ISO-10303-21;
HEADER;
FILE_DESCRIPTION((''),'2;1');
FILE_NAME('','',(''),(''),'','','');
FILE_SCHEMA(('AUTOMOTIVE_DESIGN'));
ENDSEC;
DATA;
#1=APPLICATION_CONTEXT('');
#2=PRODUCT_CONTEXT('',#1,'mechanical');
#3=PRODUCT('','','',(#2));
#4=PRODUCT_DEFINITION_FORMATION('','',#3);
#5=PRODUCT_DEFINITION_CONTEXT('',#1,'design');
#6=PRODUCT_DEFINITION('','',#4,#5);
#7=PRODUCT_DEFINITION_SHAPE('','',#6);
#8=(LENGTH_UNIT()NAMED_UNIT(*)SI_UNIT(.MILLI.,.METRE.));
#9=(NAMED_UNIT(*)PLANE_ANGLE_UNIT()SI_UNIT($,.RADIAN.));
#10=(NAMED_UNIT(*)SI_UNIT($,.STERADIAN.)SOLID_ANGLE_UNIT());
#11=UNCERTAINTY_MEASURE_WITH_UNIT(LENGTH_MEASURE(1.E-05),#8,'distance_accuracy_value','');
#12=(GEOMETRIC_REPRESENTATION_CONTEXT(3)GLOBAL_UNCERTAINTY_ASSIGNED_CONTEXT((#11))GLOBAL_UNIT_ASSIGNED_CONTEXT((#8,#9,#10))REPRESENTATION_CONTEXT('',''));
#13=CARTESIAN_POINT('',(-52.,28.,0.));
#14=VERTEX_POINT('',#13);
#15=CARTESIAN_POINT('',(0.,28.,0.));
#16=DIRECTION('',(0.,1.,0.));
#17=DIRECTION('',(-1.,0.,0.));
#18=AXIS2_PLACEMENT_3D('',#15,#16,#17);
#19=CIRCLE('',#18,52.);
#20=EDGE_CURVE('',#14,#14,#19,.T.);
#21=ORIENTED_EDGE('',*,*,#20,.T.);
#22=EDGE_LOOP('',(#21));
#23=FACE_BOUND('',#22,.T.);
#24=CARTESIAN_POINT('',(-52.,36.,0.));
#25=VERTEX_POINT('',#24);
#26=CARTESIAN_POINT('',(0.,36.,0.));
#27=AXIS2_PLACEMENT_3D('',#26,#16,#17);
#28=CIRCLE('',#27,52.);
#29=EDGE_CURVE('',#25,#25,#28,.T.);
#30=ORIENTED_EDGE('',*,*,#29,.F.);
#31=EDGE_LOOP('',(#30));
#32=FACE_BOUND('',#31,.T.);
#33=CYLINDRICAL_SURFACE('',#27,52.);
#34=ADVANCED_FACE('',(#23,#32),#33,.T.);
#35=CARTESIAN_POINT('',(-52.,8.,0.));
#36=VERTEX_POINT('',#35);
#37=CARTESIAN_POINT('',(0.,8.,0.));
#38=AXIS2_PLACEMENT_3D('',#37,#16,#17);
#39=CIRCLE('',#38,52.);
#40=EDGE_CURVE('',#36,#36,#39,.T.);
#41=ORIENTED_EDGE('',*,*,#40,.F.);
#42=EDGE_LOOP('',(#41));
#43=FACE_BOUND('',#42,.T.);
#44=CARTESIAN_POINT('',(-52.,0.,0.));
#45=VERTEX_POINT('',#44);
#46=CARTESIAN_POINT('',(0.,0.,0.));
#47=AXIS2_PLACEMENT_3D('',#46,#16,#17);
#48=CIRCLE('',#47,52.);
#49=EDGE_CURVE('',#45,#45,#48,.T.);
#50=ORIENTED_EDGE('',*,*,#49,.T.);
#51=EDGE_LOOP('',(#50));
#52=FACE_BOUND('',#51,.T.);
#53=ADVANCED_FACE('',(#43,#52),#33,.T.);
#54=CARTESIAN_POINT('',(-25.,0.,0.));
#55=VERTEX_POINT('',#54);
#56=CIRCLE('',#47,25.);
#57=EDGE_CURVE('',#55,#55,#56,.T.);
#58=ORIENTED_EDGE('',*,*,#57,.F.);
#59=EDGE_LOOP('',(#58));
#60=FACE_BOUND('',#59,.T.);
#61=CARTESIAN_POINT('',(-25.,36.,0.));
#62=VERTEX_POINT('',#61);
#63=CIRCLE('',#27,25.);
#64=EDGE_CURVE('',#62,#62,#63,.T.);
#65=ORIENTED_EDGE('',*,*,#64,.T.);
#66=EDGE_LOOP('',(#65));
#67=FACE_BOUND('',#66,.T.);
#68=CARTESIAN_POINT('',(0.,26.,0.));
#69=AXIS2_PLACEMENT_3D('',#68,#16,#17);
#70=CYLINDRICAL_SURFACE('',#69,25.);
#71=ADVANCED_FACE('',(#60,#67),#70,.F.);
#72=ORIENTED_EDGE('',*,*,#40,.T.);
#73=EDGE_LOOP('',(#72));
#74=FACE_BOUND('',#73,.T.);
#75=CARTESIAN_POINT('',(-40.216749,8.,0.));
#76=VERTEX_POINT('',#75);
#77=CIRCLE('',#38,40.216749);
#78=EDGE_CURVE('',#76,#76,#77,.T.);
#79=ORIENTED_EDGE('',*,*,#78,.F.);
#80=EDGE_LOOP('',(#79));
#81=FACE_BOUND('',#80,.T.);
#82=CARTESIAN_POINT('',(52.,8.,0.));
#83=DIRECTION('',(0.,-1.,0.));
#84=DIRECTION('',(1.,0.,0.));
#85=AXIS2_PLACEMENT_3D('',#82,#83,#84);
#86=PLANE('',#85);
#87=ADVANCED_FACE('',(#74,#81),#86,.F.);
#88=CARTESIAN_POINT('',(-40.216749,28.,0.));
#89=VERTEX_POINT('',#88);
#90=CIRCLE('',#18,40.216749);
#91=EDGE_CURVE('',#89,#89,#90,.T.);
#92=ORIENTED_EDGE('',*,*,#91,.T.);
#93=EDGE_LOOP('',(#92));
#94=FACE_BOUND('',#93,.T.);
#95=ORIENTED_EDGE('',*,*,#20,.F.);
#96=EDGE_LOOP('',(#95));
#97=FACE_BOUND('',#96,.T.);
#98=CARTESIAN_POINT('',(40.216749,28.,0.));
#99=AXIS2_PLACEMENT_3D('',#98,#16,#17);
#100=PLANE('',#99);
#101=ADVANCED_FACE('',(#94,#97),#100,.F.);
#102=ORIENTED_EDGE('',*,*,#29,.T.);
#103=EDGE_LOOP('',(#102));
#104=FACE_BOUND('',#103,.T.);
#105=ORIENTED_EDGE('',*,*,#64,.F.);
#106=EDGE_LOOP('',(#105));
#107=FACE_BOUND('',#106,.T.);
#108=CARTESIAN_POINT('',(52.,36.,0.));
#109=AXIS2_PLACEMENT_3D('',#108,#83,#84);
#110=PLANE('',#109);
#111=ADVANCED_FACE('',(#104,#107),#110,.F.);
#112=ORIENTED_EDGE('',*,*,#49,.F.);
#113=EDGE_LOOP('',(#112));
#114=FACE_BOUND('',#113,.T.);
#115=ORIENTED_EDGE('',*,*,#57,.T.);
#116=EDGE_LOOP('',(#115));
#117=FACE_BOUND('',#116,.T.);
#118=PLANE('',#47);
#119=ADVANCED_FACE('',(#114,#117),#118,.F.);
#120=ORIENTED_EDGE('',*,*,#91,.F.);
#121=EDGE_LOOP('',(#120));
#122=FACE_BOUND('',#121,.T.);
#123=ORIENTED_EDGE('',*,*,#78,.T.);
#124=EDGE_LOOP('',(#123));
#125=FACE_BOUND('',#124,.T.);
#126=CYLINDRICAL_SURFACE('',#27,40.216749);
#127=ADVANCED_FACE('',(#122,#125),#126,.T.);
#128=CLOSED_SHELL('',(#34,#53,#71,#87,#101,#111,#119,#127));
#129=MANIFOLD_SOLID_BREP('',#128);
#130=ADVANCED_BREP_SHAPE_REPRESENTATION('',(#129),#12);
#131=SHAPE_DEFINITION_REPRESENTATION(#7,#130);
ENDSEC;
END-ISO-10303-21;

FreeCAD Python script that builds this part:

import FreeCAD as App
import Part
import Sketcher
from FreeCAD import Vector
Q = App.Units.Quantity

doc = App.newDocument("Part")
params = doc.addObject("Spreadsheet::Sheet", "Params")
for row, (alias, value) in enumerate([
    ("sketch1_width", "52 mm"),
    ("sketch1_height", "8 mm"),
    ("sketch1_height2", "20 mm"),
    ("revolution_angle", "360 deg"),
    ("sketch2_diameter", "50 mm"),
    ("pocket1_length", "10 mm"),
    ("sketch3_diameter", "50 mm"),
    ("pocket2_length", "36 mm"),
], start=1):
    params.set(f"A{row}", alias)
    params.set(f"B{row}", "=" + value)
    params.setAlias(f"B{row}", alias)

body = doc.addObject("PartDesign::Body", "Body")

sketch1 = body.newObject("Sketcher::SketchObject", "Sketch")
sketch1.AttachmentSupport = (doc.getObject("XY_Plane"), [""])
sketch1.MapMode = "FlatFace"
sketch1.addGeometry([
    Part.LineSegment(Vector(0, 0, 0), Vector(52, 0, 0)),
    Part.LineSegment(Vector(52, 0, 0), Vector(52, 8, 0)),
    Part.LineSegment(Vector(52, 8, 0), Vector(40, 8, 0)),
    Part.LineSegment(Vector(40, 8, 0), Vector(40, 28, 0)),
    Part.LineSegment(Vector(40, 28, 0), Vector(52, 28, 0)),
    Part.LineSegment(Vector(52, 28, 0), Vector(52, 36, 0)),
    Part.LineSegment(Vector(52, 36, 0), Vector(0, 36, 0)),
    Part.LineSegment(Vector(0, 36, 0), Vector(0, 0, 0)),
], False)
sketch1.addConstraint([
    Sketcher.Constraint("Coincident", 0, 2, 1, 1),
    Sketcher.Constraint("Coincident", 1, 2, 2, 1),
    Sketcher.Constraint("Coincident", 2, 2, 3, 1),
    Sketcher.Constraint("Coincident", 3, 2, 4, 1),
    Sketcher.Constraint("Coincident", 4, 2, 5, 1),
    Sketcher.Constraint("Coincident", 5, 2, 6, 1),
    Sketcher.Constraint("Coincident", 6, 2, 7, 1),
    Sketcher.Constraint("Coincident", 7, 2, 0, 1),
    Sketcher.Constraint("Horizontal", 0),
    Sketcher.Constraint("Vertical", 1),
    Sketcher.Constraint("Horizontal", 2),
    Sketcher.Constraint("Vertical", 3),
    Sketcher.Constraint("Horizontal", 4),
    Sketcher.Constraint("Vertical", 5),
    Sketcher.Constraint("Horizontal", 6),
    Sketcher.Constraint("Vertical", 7),
    Sketcher.Constraint("Coincident", 7, 2, -1, 1),
    Sketcher.Constraint("Vertical", 1, 2, 4, 2),
    Sketcher.Constraint("Equal", 1, 5),
    Sketcher.Constraint("DistanceX", 0, 1, 0, 2, Q("52 mm")),
    Sketcher.Constraint("DistanceY", 1, 1, 1, 2, Q("8 mm")),
    Sketcher.Constraint("DistanceY", 3, 1, 3, 2, Q("20 mm")),
    Sketcher.Constraint("DistanceX", 2, 2, 2, 1, Q("11.783251 mm")),
])
sketch1.setExpression("Constraints[19]", "Params.sketch1_width")
sketch1.setExpression("Constraints[20]", "Params.sketch1_height")
sketch1.setExpression("Constraints[21]", "Params.sketch1_height2")
revolution = body.newObject("PartDesign::Revolution", "Revolution")
revolution.Profile = sketch1
revolution.ReferenceAxis = (sketch1, ["V_Axis"])
revolution.setExpression("Angle", "Params.revolution_angle")

sketch2 = body.newObject("Sketcher::SketchObject", "Sketch001")
sketch2.AttachmentSupport = (doc.getObject("XZ_Plane"), [""])
sketch2.MapMode = "FlatFace"
sketch2.AttachmentOffset = App.Placement(Vector(0, 0, -36), App.Rotation())
sketch2.addGeometry(Part.Circle(Vector(0, 0, 0), Vector(0, 0, 1), 25), False)
sketch2.addConstraint([
    Sketcher.Constraint("Coincident", 0, 3, -1, 1),
    Sketcher.Constraint("Diameter", 0, Q("50 mm")),
])
sketch2.setExpression("Constraints[1]", "Params.sketch2_diameter")
pocket1 = body.newObject("PartDesign::Pocket", "Pocket")
pocket1.Profile = sketch2
pocket1.setExpression("Length", "Params.pocket1_length")
pocket1.Reversed = True

sketch3 = body.newObject("Sketcher::SketchObject", "Sketch002")
sketch3.AttachmentSupport = (doc.getObject("XZ_Plane"), [""])
sketch3.MapMode = "FlatFace"
sketch3.AttachmentOffset = App.Placement(Vector(0, 0, -26), App.Rotation())
sketch3.addGeometry(Part.Circle(Vector(0, 0, 0), Vector(0, 0, 1), 25), False)
sketch3.addConstraint([
    Sketcher.Constraint("Coincident", 0, 3, -1, 1),
    Sketcher.Constraint("Diameter", 0, Q("50 mm")),
])
sketch3.setExpression("Constraints[1]", "Params.sketch3_diameter")
pocket2 = body.newObject("PartDesign::Pocket", "Pocket001")
pocket2.Profile = sketch3
pocket2.setExpression("Length", "Params.pocket2_length")
pocket2.Reversed = True

doc.recompute()
